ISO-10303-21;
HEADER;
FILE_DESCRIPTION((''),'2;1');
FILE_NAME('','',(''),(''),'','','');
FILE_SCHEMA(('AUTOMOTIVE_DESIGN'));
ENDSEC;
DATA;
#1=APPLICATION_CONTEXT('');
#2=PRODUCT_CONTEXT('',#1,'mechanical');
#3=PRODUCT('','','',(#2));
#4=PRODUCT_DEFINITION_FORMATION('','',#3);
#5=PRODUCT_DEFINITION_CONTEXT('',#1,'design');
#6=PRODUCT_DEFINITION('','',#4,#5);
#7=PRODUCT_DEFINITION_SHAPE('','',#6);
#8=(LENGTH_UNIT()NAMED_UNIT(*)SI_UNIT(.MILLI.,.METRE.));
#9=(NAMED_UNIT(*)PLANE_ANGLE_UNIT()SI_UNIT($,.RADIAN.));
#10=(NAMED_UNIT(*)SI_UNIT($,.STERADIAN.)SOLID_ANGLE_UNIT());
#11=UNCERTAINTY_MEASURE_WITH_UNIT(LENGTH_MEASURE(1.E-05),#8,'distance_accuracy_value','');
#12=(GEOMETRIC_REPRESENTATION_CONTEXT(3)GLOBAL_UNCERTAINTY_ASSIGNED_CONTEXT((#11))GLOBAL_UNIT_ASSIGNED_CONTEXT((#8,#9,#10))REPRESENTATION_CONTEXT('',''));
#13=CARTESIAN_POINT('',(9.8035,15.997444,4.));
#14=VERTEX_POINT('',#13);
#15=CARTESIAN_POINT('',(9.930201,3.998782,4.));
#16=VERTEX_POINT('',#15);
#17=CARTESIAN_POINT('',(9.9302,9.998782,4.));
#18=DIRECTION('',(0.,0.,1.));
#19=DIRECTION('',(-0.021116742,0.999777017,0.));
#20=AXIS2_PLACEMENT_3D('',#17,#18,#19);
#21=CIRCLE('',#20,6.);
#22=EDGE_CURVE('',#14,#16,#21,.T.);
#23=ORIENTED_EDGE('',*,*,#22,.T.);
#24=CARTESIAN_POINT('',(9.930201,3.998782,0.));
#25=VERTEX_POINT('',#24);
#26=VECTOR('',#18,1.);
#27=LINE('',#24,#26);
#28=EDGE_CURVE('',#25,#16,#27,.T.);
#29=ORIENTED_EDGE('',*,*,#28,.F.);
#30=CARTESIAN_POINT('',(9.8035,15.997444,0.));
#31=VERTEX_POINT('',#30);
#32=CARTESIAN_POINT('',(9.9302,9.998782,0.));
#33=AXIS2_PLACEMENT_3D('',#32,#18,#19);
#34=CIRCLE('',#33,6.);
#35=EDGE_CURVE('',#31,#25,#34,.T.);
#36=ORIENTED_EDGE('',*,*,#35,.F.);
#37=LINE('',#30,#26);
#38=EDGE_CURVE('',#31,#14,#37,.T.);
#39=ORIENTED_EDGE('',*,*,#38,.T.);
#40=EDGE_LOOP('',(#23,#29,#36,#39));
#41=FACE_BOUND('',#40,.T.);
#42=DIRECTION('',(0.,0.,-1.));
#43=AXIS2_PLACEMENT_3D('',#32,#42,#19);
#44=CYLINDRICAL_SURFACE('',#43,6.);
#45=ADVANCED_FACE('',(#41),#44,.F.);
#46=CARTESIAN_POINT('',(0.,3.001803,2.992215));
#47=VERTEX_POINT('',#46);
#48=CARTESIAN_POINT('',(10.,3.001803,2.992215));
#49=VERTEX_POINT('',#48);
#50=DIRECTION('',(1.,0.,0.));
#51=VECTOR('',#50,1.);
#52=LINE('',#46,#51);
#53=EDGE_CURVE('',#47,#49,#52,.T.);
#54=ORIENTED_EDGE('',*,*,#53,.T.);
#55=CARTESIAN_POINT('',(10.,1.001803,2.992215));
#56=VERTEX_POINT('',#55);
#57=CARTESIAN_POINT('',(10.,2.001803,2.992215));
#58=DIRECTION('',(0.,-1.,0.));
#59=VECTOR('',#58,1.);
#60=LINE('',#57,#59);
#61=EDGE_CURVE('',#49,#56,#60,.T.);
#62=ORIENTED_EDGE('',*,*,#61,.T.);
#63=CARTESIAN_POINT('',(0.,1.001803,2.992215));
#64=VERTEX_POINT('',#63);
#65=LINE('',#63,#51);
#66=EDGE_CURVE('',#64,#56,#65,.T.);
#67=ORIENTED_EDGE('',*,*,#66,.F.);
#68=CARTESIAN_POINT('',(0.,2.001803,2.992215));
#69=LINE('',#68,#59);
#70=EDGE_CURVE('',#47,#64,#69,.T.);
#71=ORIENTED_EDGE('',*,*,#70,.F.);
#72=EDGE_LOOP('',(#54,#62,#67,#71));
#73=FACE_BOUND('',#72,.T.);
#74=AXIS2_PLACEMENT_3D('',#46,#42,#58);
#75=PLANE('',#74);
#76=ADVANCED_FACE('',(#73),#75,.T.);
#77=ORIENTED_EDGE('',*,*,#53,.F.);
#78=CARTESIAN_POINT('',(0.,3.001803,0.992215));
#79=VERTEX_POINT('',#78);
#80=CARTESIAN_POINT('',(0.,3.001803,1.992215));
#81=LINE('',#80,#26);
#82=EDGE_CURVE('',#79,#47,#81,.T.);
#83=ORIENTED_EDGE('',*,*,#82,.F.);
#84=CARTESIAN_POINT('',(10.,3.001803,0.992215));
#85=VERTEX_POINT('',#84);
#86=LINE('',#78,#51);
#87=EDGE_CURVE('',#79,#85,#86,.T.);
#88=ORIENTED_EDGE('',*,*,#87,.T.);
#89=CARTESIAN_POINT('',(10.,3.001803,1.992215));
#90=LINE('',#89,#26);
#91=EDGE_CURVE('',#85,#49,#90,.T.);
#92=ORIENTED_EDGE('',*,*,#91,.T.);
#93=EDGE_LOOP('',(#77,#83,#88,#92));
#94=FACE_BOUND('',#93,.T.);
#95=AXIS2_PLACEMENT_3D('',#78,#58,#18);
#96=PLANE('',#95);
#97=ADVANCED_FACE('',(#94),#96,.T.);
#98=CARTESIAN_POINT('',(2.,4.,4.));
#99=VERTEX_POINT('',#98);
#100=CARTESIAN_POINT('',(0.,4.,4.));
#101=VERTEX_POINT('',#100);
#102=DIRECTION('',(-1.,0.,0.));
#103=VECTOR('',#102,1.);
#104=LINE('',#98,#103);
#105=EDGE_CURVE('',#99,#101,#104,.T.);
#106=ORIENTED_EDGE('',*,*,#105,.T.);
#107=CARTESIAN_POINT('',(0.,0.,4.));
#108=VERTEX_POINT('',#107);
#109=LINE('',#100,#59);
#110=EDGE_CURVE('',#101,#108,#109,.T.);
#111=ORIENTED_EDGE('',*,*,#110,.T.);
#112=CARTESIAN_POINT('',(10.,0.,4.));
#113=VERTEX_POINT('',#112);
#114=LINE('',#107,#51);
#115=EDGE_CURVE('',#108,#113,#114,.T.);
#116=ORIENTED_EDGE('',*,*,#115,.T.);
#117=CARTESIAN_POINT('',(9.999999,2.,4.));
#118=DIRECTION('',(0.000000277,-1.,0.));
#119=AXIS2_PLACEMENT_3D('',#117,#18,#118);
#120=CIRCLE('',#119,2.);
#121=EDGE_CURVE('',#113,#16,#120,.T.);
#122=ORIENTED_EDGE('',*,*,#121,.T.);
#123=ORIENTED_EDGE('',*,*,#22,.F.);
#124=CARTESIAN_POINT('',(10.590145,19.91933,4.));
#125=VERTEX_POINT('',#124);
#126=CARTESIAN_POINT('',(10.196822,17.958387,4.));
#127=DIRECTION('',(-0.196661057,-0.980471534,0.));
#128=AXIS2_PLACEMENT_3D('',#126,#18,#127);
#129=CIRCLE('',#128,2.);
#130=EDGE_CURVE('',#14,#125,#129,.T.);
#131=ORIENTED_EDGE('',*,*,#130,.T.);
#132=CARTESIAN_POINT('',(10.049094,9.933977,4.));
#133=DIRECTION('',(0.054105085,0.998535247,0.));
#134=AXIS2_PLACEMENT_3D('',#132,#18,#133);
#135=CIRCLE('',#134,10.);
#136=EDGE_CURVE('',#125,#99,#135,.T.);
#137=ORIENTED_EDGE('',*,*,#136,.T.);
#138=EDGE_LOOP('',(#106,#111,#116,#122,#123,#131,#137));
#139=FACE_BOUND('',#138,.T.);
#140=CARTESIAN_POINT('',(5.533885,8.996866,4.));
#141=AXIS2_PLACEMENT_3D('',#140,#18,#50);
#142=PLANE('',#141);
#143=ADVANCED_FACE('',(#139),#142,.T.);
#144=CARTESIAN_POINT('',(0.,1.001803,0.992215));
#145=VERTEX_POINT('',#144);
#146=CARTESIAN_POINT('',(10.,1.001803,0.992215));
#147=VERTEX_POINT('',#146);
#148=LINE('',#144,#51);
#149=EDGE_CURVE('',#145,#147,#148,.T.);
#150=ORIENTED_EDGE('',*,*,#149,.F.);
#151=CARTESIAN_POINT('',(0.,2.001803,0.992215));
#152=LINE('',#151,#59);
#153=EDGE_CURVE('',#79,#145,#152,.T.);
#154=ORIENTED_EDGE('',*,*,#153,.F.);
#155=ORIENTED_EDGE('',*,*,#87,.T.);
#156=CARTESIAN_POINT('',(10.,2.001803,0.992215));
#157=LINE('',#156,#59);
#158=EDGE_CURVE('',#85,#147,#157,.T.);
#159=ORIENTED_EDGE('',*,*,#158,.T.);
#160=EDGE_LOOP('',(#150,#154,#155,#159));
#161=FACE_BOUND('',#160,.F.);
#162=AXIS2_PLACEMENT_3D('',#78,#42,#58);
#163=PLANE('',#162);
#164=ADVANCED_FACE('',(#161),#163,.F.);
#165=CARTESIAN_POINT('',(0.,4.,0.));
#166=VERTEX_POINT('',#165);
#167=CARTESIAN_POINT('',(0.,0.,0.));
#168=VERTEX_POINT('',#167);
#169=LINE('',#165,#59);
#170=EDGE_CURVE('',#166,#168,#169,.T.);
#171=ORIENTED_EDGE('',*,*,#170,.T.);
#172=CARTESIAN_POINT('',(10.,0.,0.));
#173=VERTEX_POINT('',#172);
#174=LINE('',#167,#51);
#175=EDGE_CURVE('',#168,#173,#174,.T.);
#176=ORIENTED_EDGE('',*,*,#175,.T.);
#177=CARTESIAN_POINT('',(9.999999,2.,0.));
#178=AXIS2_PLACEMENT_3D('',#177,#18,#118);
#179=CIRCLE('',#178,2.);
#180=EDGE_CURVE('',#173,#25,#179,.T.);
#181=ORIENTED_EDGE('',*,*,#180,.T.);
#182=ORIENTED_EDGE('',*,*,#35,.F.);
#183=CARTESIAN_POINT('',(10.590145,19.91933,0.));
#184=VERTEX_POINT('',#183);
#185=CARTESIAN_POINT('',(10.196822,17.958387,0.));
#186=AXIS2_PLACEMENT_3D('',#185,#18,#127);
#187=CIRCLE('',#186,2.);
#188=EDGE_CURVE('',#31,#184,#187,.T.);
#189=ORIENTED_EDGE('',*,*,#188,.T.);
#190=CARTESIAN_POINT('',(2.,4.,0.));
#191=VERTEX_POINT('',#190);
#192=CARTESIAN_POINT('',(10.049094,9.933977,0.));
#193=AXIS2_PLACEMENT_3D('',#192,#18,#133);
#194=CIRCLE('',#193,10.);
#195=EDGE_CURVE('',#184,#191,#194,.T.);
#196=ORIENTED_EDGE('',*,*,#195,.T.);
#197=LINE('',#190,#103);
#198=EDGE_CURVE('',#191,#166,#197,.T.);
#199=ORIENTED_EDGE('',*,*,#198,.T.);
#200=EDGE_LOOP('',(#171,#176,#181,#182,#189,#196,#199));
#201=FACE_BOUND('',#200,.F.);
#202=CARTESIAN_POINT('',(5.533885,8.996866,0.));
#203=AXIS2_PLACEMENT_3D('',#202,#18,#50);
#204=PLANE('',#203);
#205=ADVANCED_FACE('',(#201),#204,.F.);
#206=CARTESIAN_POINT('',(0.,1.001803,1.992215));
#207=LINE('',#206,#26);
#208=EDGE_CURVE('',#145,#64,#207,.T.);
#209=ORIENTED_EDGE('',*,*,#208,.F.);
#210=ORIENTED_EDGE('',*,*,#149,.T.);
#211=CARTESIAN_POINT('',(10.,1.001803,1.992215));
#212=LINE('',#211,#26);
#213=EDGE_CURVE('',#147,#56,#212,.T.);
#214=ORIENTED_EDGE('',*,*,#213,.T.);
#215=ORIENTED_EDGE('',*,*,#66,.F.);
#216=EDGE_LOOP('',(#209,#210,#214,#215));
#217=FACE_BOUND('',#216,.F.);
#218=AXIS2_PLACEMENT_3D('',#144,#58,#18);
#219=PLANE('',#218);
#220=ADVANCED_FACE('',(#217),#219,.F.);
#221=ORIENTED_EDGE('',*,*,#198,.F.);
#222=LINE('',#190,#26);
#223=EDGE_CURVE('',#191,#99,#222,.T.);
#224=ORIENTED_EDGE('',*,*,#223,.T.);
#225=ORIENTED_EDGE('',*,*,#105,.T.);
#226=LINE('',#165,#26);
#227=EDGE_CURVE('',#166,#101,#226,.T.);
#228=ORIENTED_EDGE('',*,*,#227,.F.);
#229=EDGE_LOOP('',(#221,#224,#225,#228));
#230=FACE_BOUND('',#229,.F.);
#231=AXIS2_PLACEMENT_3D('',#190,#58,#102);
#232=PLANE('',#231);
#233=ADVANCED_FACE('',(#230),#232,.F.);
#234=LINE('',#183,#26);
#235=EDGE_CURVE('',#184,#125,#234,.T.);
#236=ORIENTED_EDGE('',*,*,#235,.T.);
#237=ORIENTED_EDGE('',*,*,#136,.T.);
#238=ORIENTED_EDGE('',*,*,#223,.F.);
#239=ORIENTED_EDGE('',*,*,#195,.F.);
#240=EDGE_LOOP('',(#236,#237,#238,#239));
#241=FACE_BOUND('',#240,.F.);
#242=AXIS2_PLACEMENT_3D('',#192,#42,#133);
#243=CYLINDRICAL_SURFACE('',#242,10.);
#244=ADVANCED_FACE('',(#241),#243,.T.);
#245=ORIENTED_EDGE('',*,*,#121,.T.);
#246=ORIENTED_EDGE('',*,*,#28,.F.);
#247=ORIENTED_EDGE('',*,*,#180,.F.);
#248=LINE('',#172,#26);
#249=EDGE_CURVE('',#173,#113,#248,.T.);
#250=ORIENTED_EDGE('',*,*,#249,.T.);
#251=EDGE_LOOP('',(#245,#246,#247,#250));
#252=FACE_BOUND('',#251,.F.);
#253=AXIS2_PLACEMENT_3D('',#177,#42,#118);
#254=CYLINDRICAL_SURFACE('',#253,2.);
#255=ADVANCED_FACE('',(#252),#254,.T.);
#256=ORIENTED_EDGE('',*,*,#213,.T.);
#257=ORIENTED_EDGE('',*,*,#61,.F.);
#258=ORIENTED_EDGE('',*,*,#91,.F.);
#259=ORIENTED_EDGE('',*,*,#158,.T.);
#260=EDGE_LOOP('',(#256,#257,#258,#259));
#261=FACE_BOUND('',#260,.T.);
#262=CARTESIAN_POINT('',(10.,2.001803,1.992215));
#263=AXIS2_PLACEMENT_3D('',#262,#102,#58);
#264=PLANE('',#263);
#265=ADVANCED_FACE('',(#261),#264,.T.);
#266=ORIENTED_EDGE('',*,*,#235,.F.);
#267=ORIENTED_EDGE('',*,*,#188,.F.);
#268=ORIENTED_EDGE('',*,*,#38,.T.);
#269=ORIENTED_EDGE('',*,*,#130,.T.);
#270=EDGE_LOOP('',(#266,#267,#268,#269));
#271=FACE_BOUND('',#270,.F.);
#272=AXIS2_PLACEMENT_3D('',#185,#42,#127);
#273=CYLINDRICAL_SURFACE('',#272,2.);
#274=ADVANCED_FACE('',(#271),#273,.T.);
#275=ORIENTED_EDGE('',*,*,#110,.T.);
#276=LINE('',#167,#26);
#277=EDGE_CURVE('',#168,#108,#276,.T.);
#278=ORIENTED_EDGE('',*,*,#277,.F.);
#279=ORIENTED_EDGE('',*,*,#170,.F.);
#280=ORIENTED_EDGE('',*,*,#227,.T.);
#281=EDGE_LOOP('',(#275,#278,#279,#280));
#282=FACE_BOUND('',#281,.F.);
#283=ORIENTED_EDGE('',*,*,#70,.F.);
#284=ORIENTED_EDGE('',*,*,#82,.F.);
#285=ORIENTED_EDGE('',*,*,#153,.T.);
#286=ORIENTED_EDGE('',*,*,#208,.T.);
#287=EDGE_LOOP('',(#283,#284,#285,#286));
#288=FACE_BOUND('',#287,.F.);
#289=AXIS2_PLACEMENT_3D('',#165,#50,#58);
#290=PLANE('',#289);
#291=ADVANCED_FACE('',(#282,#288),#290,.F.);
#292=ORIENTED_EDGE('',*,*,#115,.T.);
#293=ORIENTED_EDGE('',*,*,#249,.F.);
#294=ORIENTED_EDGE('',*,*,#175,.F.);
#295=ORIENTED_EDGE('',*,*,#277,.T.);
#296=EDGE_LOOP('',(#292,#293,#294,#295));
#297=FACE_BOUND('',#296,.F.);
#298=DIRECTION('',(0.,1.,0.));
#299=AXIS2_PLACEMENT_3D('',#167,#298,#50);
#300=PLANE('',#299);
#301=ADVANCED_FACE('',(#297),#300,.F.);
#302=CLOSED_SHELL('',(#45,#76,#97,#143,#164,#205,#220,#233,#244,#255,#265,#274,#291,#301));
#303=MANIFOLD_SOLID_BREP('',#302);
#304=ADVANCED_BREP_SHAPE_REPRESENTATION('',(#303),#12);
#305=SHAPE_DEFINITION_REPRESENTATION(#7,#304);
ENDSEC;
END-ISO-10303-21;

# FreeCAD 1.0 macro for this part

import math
import FreeCAD as App
import Part
import Sketcher


def add_polygon(sketch, points):
    """Adds a closed chain of lines whose ends are joined by coincident constraints."""
    first, n = sketch.GeometryCount, len(points)
    for a, b in zip(points, points[1:] + points[:1]):
        sketch.addGeometry(Part.LineSegment(App.Vector(*a, 0), App.Vector(*b, 0)), False)
    for i in range(n):
        sketch.addConstraint(Sketcher.Constraint("Coincident", first + i, 2, first + (i + 1) % n, 1))

doc = App.newDocument("Part")
body = doc.addObject("PartDesign::Body", "Body")

# Sketch on XY plane
sketch1 = body.newObject("Sketcher::SketchObject", "Sketch")
sketch1.AttachmentSupport = (doc.getObject("XY_Plane"), [""])
sketch1.MapMode = "FlatFace"
sketch1.addGeometry(Part.LineSegment(App.Vector(2, 4, 0), App.Vector(0, 4, 0)), False)
sketch1.addGeometry(Part.LineSegment(App.Vector(0, 4, 0), App.Vector(0, 0, 0)), False)
sketch1.addGeometry(Part.LineSegment(App.Vector(0, 0, 0), App.Vector(10, 0, 0)), False)
sketch1.addGeometry(Part.ArcOfCircle(Part.Circle(App.Vector(10, 2, 0), App.Vector(0, 0, 1), 2), math.radians(-90), math.radians(92)), False)
sketch1.addGeometry(Part.ArcOfCircle(Part.Circle(App.Vector(9.9, 10, 0), App.Vector(0, 0, 1), 6), math.radians(91), math.radians(270)), False)
sketch1.addGeometry(Part.ArcOfCircle(Part.Circle(App.Vector(10.2, 18, 0), App.Vector(0, 0, 1), 2), math.radians(-101), math.radians(79)), False)
sketch1.addGeometry(Part.ArcOfCircle(Part.Circle(App.Vector(10, 9.9, 0), App.Vector(0, 0, 1), 10), math.radians(87), math.radians(216)), False)
sketch1.addConstraint(Sketcher.Constraint("Coincident", 0, 2, 1, 1))
sketch1.addConstraint(Sketcher.Constraint("Coincident", 1, 2, 2, 1))
sketch1.addConstraint(Sketcher.Constraint("Tangent", 2, 2, 3, 1))
sketch1.addConstraint(Sketcher.Constraint("Coincident", 3, 2, 4, 2))
sketch1.addConstraint(Sketcher.Constraint("Coincident", 4, 1, 5, 1))
sketch1.addConstraint(Sketcher.Constraint("Coincident", 5, 2, 6, 1))
sketch1.addConstraint(Sketcher.Constraint("Coincident", 6, 2, 0, 1))
sketch1.addConstraint(Sketcher.Constraint("Horizontal", 0))
sketch1.addConstraint(Sketcher.Constraint("Vertical", 1))
sketch1.addConstraint(Sketcher.Constraint("Horizontal", 2))
sketch1.addConstraint(Sketcher.Constraint("Coincident", 1, 2, -1, 1))
sketch1.addConstraint(Sketcher.Constraint("Equal", 3, 5))
sketch1.addConstraint(Sketcher.Constraint("Vertical", 4, 3, 3, 2))
sketch1.addConstraint(Sketcher.Constraint("Radius", 3, 2.0))
sketch1.addConstraint(Sketcher.Constraint("Radius", 4, 6.0))
sketch1.addConstraint(Sketcher.Constraint("Radius", 6, 10.0))
sketch1.addConstraint(Sketcher.Constraint("DistanceX", 0, 2, 0, 1, 2.0))
sketch1.addConstraint(Sketcher.Constraint("DistanceX", 2, 1, 2, 2, 10.0))
sketch1.addConstraint(Sketcher.Constraint("DistanceY", 1, 2, 1, 1, 4.0))
sketch1.addConstraint(Sketcher.Constraint("DistanceX", -1, 1, 4, 3, 9.9302))
sketch1.addConstraint(Sketcher.Constraint("DistanceX", -1, 1, 4, 1, 9.8035))
sketch1.addConstraint(Sketcher.Constraint("DistanceY", -1, 1, 5, 2, 19.91933))
sketch1.addConstraint(Sketcher.Constraint("DistanceX", 4, 3, 5, 3, 0.266622))
pad1 = body.newObject("PartDesign::Pad", "Pad")
pad1.Profile = sketch1
pad1.Length = 4

# Sketch on YZ plane
sketch2 = body.newObject("Sketcher::SketchObject", "Sketch001")
sketch2.AttachmentSupport = (doc.getObject("YZ_Plane"), [""])
sketch2.MapMode = "FlatFace"
add_polygon(sketch2, [(3, 3), (3, 1), (1, 1), (1, 3)])  # lines 0-3
sketch2.addConstraint(Sketcher.Constraint("Vertical", 0))
sketch2.addConstraint(Sketcher.Constraint("Horizontal", 1))
sketch2.addConstraint(Sketcher.Constraint("Vertical", 2))
sketch2.addConstraint(Sketcher.Constraint("Horizontal", 3))
sketch2.addConstraint(Sketcher.Constraint("Equal", 3, 0))
sketch2.addConstraint(Sketcher.Constraint("DistanceX", 1, 2, 1, 1, 2.0))
sketch2.addConstraint(Sketcher.Constraint("DistanceX", -1, 1, 0, 2, 3.001803))
sketch2.addConstraint(Sketcher.Constraint("DistanceY", -1, 1, 0, 2, 0.992215))
pocket1 = body.newObject("PartDesign::Pocket", "Pocket")
pocket1.Profile = sketch2
pocket1.Length = 10
pocket1.Reversed = True

doc.recompute()
